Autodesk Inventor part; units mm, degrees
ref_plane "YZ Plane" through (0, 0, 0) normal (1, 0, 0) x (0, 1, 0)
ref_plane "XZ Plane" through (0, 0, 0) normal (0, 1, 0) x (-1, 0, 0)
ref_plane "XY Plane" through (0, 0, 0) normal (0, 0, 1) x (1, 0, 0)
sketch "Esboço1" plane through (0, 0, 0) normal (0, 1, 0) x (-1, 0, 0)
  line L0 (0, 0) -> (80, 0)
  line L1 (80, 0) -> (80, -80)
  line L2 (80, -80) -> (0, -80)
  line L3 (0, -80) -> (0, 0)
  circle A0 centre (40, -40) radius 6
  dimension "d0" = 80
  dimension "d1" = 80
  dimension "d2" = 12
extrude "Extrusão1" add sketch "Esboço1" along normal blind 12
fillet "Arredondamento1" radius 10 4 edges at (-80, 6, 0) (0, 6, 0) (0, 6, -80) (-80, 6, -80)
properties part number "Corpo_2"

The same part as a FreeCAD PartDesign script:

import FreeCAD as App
import Part
import Sketcher

V = App.Vector


def edges_at(feature, points):
    """Names of the edges that pass closest to the given points."""
    edges = feature.Shape.Edges
    near = lambda p: min(range(len(edges)), key=lambda i: edges[i].distToShape(Part.Vertex(*p))[0])
    return sorted({f"Edge{near(p) + 1}" for p in points})


def add_polygon(sketch, points):
    """Adds a closed chain of lines whose ends are joined by coincident constraints."""
    first, n = sketch.GeometryCount, len(points)
    for a, b in zip(points, points[1:] + points[:1]):
        sketch.addGeometry(Part.LineSegment(App.Vector(*a, 0), App.Vector(*b, 0)), False)
    for i in range(n):
        sketch.addConstraint(Sketcher.Constraint("Coincident", first + i, 2, first + (i + 1) % n, 1))

doc = App.newDocument("Part")
body = doc.addObject("PartDesign::Body", "Body")

sketch1 = doc.addObject("Sketcher::SketchObject", "Sketch")
body.addObject(sketch1)
sketch1.AttachmentSupport = (doc.XZ_Plane, [""])
sketch1.MapMode = "FlatFace"
add_polygon(sketch1, [(-80, 0), (0, 0), (0, -80), (-80, -80)])
sketch1.addGeometry(Part.Circle(V(-40, -40, 0), V(0, 0, 1), 6), False)
sketch1.addConstraint(Sketcher.Constraint("Horizontal", 0))
sketch1.addConstraint(Sketcher.Constraint("Vertical", 1))
sketch1.addConstraint(Sketcher.Constraint("Horizontal", 2))
sketch1.addConstraint(Sketcher.Constraint("Vertical", 3))
sketch1.addConstraint(Sketcher.Constraint("Coincident", 0, 2, -1, 1))
sketch1.addConstraint(Sketcher.Constraint("Equal", 2, 1))
sketch1.addConstraint(Sketcher.Constraint("Diameter", 4, 12.0))
sketch1.addConstraint(Sketcher.Constraint("DistanceX", 0, 1, 0, 2, 80.0))
sketch1.addConstraint(Sketcher.Constraint("DistanceX", 4, 3, -1, 1, 40.0))
sketch1.addConstraint(Sketcher.Constraint("DistanceY", 4, 3, -1, 1, 40.0))
pad1 = doc.addObject("PartDesign::Pad", "Pad")
body.addObject(pad1)
pad1.Profile = sketch1
pad1.Length = 12
pad1.Reversed = True
doc.recompute()

fillet = doc.addObject("PartDesign::Fillet", "Fillet")
body.addObject(fillet)
fillet.Base = (pad1, edges_at(pad1, [
    (-80, 6, 0),
    (0, 6, 0),
    (0, 6, -80),
    (-80, 6, -80),
]))
fillet.Radius = 10

doc.recompute()
